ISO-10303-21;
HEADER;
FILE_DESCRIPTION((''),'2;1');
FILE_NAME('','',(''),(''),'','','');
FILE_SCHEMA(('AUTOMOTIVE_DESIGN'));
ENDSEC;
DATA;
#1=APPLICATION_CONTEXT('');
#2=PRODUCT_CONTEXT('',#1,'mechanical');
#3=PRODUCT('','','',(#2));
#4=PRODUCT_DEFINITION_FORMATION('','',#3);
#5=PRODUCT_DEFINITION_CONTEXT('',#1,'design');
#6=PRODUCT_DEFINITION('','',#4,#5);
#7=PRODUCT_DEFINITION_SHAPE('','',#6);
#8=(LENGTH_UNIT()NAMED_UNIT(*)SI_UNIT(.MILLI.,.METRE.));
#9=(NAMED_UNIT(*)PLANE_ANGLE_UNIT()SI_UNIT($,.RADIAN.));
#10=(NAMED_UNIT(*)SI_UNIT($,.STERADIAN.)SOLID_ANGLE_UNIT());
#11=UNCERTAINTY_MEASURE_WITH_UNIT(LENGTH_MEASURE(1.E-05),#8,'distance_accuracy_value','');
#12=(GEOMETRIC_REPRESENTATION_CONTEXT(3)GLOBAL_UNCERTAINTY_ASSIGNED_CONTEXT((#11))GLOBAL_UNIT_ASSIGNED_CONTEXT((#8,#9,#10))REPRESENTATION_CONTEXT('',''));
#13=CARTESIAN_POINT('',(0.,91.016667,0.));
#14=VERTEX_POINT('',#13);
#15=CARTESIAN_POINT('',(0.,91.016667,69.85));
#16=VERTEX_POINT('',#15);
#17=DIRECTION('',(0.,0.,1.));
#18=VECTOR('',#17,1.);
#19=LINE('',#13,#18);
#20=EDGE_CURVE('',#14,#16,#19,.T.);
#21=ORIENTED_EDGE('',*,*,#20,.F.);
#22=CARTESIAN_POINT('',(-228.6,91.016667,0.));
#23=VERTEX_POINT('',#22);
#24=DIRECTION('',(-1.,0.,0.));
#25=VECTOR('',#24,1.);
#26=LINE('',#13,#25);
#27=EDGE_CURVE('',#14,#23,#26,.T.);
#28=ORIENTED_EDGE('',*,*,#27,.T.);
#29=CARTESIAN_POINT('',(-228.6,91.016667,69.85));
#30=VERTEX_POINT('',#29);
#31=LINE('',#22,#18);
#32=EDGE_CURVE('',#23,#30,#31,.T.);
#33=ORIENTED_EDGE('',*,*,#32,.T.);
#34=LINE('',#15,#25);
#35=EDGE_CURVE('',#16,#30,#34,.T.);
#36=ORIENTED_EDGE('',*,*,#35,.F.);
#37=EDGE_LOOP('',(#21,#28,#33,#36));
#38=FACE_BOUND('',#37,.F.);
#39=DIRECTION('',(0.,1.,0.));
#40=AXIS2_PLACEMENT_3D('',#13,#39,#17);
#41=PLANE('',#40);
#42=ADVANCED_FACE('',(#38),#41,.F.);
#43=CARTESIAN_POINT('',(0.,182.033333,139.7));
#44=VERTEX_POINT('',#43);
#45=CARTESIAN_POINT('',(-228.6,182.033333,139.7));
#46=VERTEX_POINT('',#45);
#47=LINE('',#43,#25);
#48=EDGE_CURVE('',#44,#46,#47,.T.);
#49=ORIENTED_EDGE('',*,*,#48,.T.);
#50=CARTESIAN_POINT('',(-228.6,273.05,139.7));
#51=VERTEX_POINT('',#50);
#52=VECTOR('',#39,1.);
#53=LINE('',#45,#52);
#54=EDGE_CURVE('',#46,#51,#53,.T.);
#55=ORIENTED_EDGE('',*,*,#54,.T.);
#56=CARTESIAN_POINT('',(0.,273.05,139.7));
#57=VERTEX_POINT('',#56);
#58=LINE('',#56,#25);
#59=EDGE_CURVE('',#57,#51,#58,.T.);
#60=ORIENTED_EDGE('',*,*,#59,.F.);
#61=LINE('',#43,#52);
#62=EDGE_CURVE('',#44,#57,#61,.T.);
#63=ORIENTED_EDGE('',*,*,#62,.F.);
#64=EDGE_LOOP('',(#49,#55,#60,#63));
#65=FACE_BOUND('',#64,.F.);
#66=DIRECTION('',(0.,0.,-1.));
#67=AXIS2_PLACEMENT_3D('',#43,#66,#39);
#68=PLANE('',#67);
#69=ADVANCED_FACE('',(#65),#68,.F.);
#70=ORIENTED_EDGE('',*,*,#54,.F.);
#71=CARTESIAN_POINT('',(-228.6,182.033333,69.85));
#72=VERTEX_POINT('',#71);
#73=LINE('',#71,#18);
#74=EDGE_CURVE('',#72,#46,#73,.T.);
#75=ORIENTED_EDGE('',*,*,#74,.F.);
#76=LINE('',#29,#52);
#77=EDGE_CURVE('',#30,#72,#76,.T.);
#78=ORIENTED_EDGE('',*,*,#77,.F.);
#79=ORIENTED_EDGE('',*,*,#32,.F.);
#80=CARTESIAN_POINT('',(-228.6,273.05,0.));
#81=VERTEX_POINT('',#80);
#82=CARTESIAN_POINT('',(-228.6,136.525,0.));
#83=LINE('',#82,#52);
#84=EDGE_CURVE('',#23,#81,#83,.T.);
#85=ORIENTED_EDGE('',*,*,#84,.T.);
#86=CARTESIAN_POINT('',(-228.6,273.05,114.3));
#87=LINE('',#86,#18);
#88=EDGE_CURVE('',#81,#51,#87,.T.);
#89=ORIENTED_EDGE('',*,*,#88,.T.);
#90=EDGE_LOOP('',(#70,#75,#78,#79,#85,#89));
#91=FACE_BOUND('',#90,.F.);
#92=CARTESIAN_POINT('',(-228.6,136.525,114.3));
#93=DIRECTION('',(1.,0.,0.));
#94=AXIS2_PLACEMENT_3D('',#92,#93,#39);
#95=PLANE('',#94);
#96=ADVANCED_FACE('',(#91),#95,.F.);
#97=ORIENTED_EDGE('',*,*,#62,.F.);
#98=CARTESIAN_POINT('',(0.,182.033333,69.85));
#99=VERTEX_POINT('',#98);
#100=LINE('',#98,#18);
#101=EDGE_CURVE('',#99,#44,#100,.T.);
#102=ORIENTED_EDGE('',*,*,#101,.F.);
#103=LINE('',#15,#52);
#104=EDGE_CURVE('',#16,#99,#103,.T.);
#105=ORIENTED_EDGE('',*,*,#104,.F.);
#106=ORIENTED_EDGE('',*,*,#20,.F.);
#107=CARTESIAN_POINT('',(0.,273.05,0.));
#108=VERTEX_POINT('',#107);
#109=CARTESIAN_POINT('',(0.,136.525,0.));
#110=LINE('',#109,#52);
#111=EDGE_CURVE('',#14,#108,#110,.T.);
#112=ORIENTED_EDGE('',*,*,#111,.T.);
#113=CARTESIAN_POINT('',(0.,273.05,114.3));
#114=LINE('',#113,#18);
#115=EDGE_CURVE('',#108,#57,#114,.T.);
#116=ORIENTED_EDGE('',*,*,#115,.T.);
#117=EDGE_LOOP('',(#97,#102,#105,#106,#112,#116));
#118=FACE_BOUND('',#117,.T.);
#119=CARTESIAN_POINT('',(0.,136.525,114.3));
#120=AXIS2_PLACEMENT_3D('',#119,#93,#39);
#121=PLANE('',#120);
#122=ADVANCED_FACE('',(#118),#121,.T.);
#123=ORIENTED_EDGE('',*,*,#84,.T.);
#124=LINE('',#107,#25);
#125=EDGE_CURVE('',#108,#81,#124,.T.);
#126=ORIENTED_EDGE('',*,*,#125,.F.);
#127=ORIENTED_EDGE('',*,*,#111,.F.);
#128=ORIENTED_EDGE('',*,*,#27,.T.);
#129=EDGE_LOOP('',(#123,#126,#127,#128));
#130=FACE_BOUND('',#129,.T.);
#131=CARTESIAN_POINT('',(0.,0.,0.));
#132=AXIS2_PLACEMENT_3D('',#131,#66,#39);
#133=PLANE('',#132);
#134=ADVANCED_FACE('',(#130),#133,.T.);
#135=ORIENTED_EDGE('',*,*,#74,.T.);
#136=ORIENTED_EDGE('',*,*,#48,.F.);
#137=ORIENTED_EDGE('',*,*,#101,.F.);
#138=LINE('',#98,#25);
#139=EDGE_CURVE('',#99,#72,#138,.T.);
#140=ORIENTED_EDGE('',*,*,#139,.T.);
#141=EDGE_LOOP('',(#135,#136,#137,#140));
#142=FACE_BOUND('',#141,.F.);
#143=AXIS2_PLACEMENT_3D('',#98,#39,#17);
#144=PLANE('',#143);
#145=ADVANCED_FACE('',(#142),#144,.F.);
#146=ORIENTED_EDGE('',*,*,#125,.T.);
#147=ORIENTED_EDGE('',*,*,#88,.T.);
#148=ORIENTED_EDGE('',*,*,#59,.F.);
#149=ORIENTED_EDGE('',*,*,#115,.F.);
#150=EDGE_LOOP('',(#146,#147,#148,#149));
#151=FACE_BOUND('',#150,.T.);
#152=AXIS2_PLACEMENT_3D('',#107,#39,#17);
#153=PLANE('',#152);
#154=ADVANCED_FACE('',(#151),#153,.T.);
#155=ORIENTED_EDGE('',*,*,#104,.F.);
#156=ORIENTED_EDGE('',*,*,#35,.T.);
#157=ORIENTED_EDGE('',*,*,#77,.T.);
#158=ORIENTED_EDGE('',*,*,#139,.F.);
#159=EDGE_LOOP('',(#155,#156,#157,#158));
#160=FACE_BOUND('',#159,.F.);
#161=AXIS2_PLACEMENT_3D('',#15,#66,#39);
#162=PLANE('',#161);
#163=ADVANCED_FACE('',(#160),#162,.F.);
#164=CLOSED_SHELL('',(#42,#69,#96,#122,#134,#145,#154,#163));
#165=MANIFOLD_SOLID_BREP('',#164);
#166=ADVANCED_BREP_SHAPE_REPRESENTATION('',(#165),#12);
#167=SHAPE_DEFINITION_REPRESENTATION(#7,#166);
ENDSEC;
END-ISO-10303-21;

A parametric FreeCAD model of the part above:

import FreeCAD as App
import Part
import Sketcher
Q = App.Units.Quantity


def add_polygon(sketch, points):
    """Adds a closed chain of lines whose ends are joined by coincident constraints."""
    first, n = sketch.GeometryCount, len(points)
    for a, b in zip(points, points[1:] + points[:1]):
        sketch.addGeometry(Part.LineSegment(App.Vector(*a, 0), App.Vector(*b, 0)), False)
    for i in range(n):
        sketch.addConstraint(Sketcher.Constraint("Coincident", first + i, 2, first + (i + 1) % n, 1))

doc = App.newDocument("Part")
params = doc.addObject("Spreadsheet::Sheet", "Params")
for row, (alias, value) in enumerate([
    ("sketch1_height", "9 in"),
    ("sketch1_width", "10.75 in"),
    ("pad1_length", "9 in"),
    ("sketch2_height", "9 in"),
    ("sketch2_height2", "3.5 in"),
    ("sketch2_width", "10.75 in"),
], start=1):
    params.set(f"A{row}", alias)
    params.set(f"B{row}", "=" + value)
    params.setAlias(f"B{row}", alias)

body = doc.addObject("PartDesign::Body", "Body")

# Sketch on YZ plane
sketch1 = body.newObject("Sketcher::SketchObject", "Sketch")
sketch1.AttachmentSupport = (doc.getObject("YZ_Plane"), [""])
sketch1.MapMode = "FlatFace"
add_polygon(sketch1, [(0, 229), (0, 0), (273, 0), (273, 229)])  # lines 0-3
sketch1.addConstraint([
    Sketcher.Constraint("Vertical", 0),
    Sketcher.Constraint("Horizontal", 1),
    Sketcher.Constraint("Vertical", 2),
    Sketcher.Constraint("Horizontal", 3),
    Sketcher.Constraint("Coincident", 0, 2, -1, 1),
    Sketcher.Constraint("DistanceY", 0, 2, 0, 1, Q("9 in")),
    Sketcher.Constraint("DistanceX", 1, 1, 1, 2, Q("10.75 in")),
])
sketch1.setExpression("Constraints[9]", "Params.sketch1_height")
sketch1.setExpression("Constraints[10]", "Params.sketch1_width")
pad1 = body.newObject("PartDesign::Pad", "Pad")
pad1.Profile = sketch1
pad1.setExpression("Length", "Params.pad1_length")
pad1.Reversed = True

# Sketch on YZ plane
sketch2 = body.newObject("Sketcher::SketchObject", "Sketch001")
sketch2.AttachmentSupport = (doc.getObject("YZ_Plane"), [""])
sketch2.MapMode = "FlatFace"
add_polygon(sketch2, [(182, 140), (273, 140), (273, 229), (0, 229), (0, 0), (91, 0), (91, 70), (182, 70)])  # lines 0-7
sketch2.addConstraint([
    Sketcher.Constraint("Horizontal", 0),
    Sketcher.Constraint("Vertical", 1),
    Sketcher.Constraint("Horizontal", 2),
    Sketcher.Constraint("Vertical", 3),
    Sketcher.Constraint("Horizontal", 4),
    Sketcher.Constraint("Vertical", 5),
    Sketcher.Constraint("Horizontal", 6),
    Sketcher.Constraint("Vertical", 7),
    Sketcher.Constraint("Coincident", 3, 2, -1, 1),
    Sketcher.Constraint("Equal", 0, 4),
    Sketcher.Constraint("Equal", 4, 6),
    Sketcher.Constraint("Equal", 5, 7),
    Sketcher.Constraint("DistanceY", 3, 2, 3, 1, Q("9 in")),
    Sketcher.Constraint("DistanceY", 1, 1, 1, 2, Q("3.5 in")),
    Sketcher.Constraint("DistanceX", 2, 2, 2, 1, Q("10.75 in")),
])
sketch2.setExpression("Constraints[20]", "Params.sketch2_height")
sketch2.setExpression("Constraints[21]", "Params.sketch2_height2")
sketch2.setExpression("Constraints[22]", "Params.sketch2_width")
pocket1 = body.newObject("PartDesign::Pocket", "Pocket")
pocket1.Profile = sketch2
pocket1.Type = "ThroughAll"

doc.recompute()
